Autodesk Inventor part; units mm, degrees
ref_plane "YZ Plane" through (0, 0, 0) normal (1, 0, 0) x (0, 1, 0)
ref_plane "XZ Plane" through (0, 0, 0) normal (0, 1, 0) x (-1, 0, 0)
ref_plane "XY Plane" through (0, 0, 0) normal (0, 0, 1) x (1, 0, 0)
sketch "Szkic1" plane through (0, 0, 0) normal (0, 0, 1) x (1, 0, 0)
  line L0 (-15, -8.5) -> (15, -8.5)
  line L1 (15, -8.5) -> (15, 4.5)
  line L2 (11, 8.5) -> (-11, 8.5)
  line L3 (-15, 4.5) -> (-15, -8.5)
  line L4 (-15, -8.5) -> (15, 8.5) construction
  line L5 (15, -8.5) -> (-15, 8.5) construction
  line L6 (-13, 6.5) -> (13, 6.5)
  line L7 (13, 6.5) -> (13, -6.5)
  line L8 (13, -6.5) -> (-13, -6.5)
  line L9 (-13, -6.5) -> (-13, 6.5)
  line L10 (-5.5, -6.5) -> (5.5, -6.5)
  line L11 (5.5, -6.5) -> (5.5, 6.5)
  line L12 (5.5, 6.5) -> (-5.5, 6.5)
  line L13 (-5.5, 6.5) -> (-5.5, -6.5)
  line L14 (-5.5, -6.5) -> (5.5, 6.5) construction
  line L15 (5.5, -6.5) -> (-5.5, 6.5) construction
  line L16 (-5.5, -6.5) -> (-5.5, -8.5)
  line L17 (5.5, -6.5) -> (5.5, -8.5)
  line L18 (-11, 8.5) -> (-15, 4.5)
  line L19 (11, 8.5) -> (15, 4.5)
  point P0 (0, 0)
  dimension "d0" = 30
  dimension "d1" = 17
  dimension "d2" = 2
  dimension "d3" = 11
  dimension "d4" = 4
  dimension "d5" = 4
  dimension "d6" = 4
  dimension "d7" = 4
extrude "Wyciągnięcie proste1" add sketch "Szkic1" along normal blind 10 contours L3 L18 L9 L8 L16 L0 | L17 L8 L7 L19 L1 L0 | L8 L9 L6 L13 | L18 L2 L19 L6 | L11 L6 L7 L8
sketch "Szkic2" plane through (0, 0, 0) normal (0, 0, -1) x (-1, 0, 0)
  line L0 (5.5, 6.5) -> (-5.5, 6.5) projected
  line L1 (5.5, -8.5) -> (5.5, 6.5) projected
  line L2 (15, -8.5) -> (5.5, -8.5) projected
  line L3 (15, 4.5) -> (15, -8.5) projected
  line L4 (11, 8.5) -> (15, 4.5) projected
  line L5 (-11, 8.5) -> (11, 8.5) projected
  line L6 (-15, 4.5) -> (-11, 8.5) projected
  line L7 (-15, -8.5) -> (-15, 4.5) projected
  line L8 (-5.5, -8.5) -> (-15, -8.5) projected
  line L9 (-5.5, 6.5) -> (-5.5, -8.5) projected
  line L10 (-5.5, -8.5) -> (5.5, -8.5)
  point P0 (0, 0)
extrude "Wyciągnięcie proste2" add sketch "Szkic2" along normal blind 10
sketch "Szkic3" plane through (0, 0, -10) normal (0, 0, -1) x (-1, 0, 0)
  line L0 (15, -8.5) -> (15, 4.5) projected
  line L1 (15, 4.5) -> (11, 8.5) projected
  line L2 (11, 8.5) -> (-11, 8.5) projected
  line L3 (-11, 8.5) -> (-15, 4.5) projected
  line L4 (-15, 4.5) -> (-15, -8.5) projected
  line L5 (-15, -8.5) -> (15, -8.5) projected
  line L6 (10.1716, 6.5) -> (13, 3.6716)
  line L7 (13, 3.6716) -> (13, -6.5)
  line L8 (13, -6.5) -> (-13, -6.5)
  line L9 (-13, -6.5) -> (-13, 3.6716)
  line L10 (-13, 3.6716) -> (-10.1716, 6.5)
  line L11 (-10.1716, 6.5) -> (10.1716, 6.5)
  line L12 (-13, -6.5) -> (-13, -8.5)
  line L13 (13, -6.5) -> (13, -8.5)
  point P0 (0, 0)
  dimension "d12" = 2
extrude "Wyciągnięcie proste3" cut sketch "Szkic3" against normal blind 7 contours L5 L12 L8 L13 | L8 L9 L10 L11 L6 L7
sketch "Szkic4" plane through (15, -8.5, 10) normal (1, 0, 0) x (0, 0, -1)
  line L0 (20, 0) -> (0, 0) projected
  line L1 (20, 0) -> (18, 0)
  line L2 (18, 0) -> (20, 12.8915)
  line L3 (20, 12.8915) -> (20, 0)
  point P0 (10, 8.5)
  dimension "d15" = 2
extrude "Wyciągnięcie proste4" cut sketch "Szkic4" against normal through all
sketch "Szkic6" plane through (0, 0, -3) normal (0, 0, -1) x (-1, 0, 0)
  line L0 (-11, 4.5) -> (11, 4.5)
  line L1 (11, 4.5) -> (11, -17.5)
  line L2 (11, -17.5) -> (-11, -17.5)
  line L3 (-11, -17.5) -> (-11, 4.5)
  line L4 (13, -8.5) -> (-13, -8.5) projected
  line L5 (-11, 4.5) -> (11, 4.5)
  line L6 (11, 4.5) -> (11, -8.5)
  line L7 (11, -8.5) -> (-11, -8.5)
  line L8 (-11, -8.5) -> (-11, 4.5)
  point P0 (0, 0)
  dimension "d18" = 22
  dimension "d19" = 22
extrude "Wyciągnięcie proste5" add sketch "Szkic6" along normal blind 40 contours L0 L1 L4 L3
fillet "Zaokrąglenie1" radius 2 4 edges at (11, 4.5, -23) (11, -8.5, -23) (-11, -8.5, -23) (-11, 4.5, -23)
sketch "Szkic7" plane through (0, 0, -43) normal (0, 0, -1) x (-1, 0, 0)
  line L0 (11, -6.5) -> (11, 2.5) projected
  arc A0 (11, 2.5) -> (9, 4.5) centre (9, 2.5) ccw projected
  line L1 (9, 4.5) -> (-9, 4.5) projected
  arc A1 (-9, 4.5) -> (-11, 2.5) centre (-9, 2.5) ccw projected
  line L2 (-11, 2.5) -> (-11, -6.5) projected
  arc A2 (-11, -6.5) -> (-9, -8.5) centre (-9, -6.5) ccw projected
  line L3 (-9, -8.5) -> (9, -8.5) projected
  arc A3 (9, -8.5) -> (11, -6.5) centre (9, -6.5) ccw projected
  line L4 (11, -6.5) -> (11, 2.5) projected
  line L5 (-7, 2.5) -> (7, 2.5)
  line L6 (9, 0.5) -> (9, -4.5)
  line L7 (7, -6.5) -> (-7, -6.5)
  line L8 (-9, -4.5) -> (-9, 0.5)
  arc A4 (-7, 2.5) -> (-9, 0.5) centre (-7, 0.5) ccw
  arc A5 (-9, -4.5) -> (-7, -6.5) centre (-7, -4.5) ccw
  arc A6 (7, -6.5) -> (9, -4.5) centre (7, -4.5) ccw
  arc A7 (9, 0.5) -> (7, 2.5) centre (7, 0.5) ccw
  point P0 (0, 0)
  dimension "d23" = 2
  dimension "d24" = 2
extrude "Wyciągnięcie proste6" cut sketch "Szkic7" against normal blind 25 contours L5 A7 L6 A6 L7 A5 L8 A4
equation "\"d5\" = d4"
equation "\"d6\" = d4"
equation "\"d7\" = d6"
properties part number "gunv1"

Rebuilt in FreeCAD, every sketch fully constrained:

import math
import FreeCAD as App
import Part
import Sketcher


def edges_at(feature, points):
    """Names of the edges that pass closest to the given points."""
    edges = feature.Shape.Edges
    near = lambda p: min(range(len(edges)), key=lambda i: edges[i].distToShape(Part.Vertex(*p))[0])
    return sorted({f"Edge{near(p) + 1}" for p in points})

doc = App.newDocument("Part")
params = doc.addObject("Spreadsheet::Sheet", "Params")
for row, (alias, value) in enumerate([
    ("sketch1_width", "11 mm"),
    ("pad1_length", "10 mm"),
    ("sketch2_width", "22 mm"),
    ("sketch2_width2", "30 mm"),
    ("sketch2_height", "13 mm"),
    ("pad2_length", "10 mm"),
    ("sketch3_width", "26 mm"),
    ("sketch3_length", "4 mm"),
    ("pocket1_length", "7 mm"),
    ("sketch4_height", "2 mm"),
    ("sketch5_width", "22 mm"),
    ("sketch5_height", "13 mm"),
    ("pad3_length", "40 mm"),
    ("fillet_radius", "2 mm"),
    ("sketch6_radius", "2 mm"),
    ("sketch6_width", "14 mm"),
    ("sketch6_height", "5 mm"),
    ("pocket3_length", "25 mm"),
], start=1):
    params.set(f"A{row}", alias)
    params.set(f"B{row}", "=" + value)
    params.setAlias(f"B{row}", alias)

body = doc.addObject("PartDesign::Body", "Body")

# Sketch on XY plane
sketch1 = doc.addObject("Sketcher::SketchObject", "Sketch")
body.addObject(sketch1)
sketch1.AttachmentSupport = (doc.XY_Plane, [""])
sketch1.MapMode = "FlatFace"
sketch1.addGeometry(Part.LineSegment(App.Vector(-15, 4, 0), App.Vector(-15, -8, 0)), False)
sketch1.addGeometry(Part.LineSegment(App.Vector(-15, -8, 0), App.Vector(-6, -8, 0)), False)
sketch1.addGeometry(Part.LineSegment(App.Vector(-6, -8, 0), App.Vector(-6, 6, 0)), False)
sketch1.addGeometry(Part.LineSegment(App.Vector(-6, 6, 0), App.Vector(6, 6, 0)), False)
sketch1.addGeometry(Part.LineSegment(App.Vector(6, 6, 0), App.Vector(6, -8, 0)), False)
sketch1.addGeometry(Part.LineSegment(App.Vector(6, -8, 0), App.Vector(15, -8, 0)), False)
sketch1.addGeometry(Part.LineSegment(App.Vector(15, -8, 0), App.Vector(15, 4, 0)), False)
sketch1.addGeometry(Part.LineSegment(App.Vector(15, 4, 0), App.Vector(11, 8, 0)), False)
sketch1.addGeometry(Part.LineSegment(App.Vector(11, 8, 0), App.Vector(-11, 8, 0)), False)
sketch1.addGeometry(Part.LineSegment(App.Vector(-11, 8, 0), App.Vector(-15, 4, 0)), False)
sketch1.addConstraint(Sketcher.Constraint("Coincident", 0, 2, 1, 1))
sketch1.addConstraint(Sketcher.Constraint("Coincident", 1, 2, 2, 1))
sketch1.addConstraint(Sketcher.Constraint("Coincident", 2, 2, 3, 1))
sketch1.addConstraint(Sketcher.Constraint("Coincident", 3, 2, 4, 1))
sketch1.addConstraint(Sketcher.Constraint("Coincident", 4, 2, 5, 1))
sketch1.addConstraint(Sketcher.Constraint("Coincident", 5, 2, 6, 1))
sketch1.addConstraint(Sketcher.Constraint("Coincident", 6, 2, 7, 1))
sketch1.addConstraint(Sketcher.Constraint("Coincident", 7, 2, 8, 1))
sketch1.addConstraint(Sketcher.Constraint("Coincident", 8, 2, 9, 1))
sketch1.addConstraint(Sketcher.Constraint("Coincident", 9, 2, 0, 1))
sketch1.addConstraint(Sketcher.Constraint("Vertical", 0))
sketch1.addConstraint(Sketcher.Constraint("Horizontal", 1))
sketch1.addConstraint(Sketcher.Constraint("Vertical", 2))
sketch1.addConstraint(Sketcher.Constraint("Horizontal", 3))
sketch1.addConstraint(Sketcher.Constraint("Vertical", 4))
sketch1.addConstraint(Sketcher.Constraint("Horizontal", 5))
sketch1.addConstraint(Sketcher.Constraint("Vertical", 6))
sketch1.addConstraint(Sketcher.Constraint("Horizontal", 8))
sketch1.addConstraint(Sketcher.Constraint("Symmetric", 1, 2, 4, 2, -2))
sketch1.addConstraint(Sketcher.Constraint("Symmetric", 6, 2, 9, 2, -2))
sketch1.addConstraint(Sketcher.Constraint("Perpendicular", 7, 9))
sketch1.addConstraint(Sketcher.Constraint("Equal", 7, 9))
sketch1.addConstraint(Sketcher.Constraint("DistanceX", 3, 1, 3, 2, 11.0))
sketch1.addConstraint(Sketcher.Constraint("DistanceX", -1, 1, 7, 2, 11.0))
sketch1.addConstraint(Sketcher.Constraint("DistanceX", 0, 2, 5, 2, 30.0))
sketch1.addConstraint(Sketcher.Constraint("DistanceY", 6, 2, 3, 2, 2.0))
sketch1.addConstraint(Sketcher.Constraint("DistanceY", 5, 2, 7, 2, 17.0))
sketch1.addConstraint(Sketcher.Constraint("DistanceY", 0, 2, -1, 1, 8.5))
sketch1.setExpression("Constraints[22]", "Params.sketch1_width")
pad1 = doc.addObject("PartDesign::Pad", "Pad")
body.addObject(pad1)
pad1.Profile = sketch1
pad1.setExpression("Length", "Params.pad1_length")

# Sketch on XY plane
sketch2 = doc.addObject("Sketcher::SketchObject", "Sketch001")
body.addObject(sketch2)
sketch2.AttachmentSupport = (doc.XY_Plane, [""])
sketch2.MapMode = "FlatFace"
sketch2.addGeometry(Part.LineSegment(App.Vector(-15, -8, 0), App.Vector(-15, 4, 0)), False)
sketch2.addGeometry(Part.LineSegment(App.Vector(-15, 4, 0), App.Vector(-11, 8, 0)), False)
sketch2.addGeometry(Part.LineSegment(App.Vector(-11, 8, 0), App.Vector(11, 8, 0)), False)
sketch2.addGeometry(Part.LineSegment(App.Vector(11, 8, 0), App.Vector(15, 4, 0)), False)
sketch2.addGeometry(Part.LineSegment(App.Vector(15, 4, 0), App.Vector(15, -8, 0)), False)
sketch2.addGeometry(Part.LineSegment(App.Vector(15, -8, 0), App.Vector(-15, -8, 0)), False)
sketch2.addConstraint(Sketcher.Constraint("Coincident", 0, 2, 1, 1))
sketch2.addConstraint(Sketcher.Constraint("Coincident", 1, 2, 2, 1))
sketch2.addConstraint(Sketcher.Constraint("Coincident", 2, 2, 3, 1))
sketch2.addConstraint(Sketcher.Constraint("Coincident", 3, 2, 4, 1))
sketch2.addConstraint(Sketcher.Constraint("Coincident", 4, 2, 5, 1))
sketch2.addConstraint(Sketcher.Constraint("Coincident", 5, 2, 0, 1))
sketch2.addConstraint(Sketcher.Constraint("Vertical", 0))
sketch2.addConstraint(Sketcher.Constraint("Horizontal", 2))
sketch2.addConstraint(Sketcher.Constraint("Vertical", 4))
sketch2.addConstraint(Sketcher.Constraint("Horizontal", 5))
sketch2.addConstraint(Sketcher.Constraint("Symmetric", 0, 2, 3, 2, -2))
sketch2.addConstraint(Sketcher.Constraint("Perpendicular", 1, 3))
sketch2.addConstraint(Sketcher.Constraint("Equal", 1, 3))
sketch2.addConstraint(Sketcher.Constraint("DistanceX", 2, 1, 2, 2, 22.0))
sketch2.addConstraint(Sketcher.Constraint("DistanceX", 5, 2, 5, 1, 30.0))
sketch2.addConstraint(Sketcher.Constraint("DistanceY", 0, 1, 0, 2, 13.0))
sketch2.addConstraint(Sketcher.Constraint("DistanceY", -1, 1, 0, 2, 4.5))
sketch2.setExpression("Constraints[13]", "Params.sketch2_width")
sketch2.setExpression("Constraints[14]", "Params.sketch2_width2")
sketch2.setExpression("Constraints[15]", "Params.sketch2_height")
pad2 = doc.addObject("PartDesign::Pad", "Pad001")
body.addObject(pad2)
pad2.Profile = sketch2
pad2.setExpression("Length", "Params.pad2_length")
pad2.Reversed = True

# Sketch on XY plane
sketch3 = doc.addObject("Sketcher::SketchObject", "Sketch002")
body.addObject(sketch3)
sketch3.AttachmentSupport = (doc.XY_Plane, [""])
sketch3.MapMode = "FlatFace"
sketch3.AttachmentOffset = App.Placement(App.Vector(0, 0, -10), App.Rotation())
sketch3.addGeometry(Part.LineSegment(App.Vector(13, -8.5, 0), App.Vector(-13, -8.5, 0)), False)
sketch3.addGeometry(Part.LineSegment(App.Vector(-13, -8.5, 0), App.Vector(-13, 3.7, 0)), False)
sketch3.addGeometry(Part.LineSegment(App.Vector(-13, 3.7, 0), App.Vector(-10.2, 6.5, 0)), False)
sketch3.addGeometry(Part.LineSegment(App.Vector(-10.2, 6.5, 0), App.Vector(10.2, 6.5, 0)), False)
sketch3.addGeometry(Part.LineSegment(App.Vector(10.2, 6.5, 0), App.Vector(13, 3.7, 0)), False)
sketch3.addGeometry(Part.LineSegment(App.Vector(13, 3.7, 0), App.Vector(13, -8.5, 0)), False)
sketch3.addConstraint(Sketcher.Constraint("Coincident", 0, 2, 1, 1))
sketch3.addConstraint(Sketcher.Constraint("Coincident", 1, 2, 2, 1))
sketch3.addConstraint(Sketcher.Constraint("Coincident", 2, 2, 3, 1))
sketch3.addConstraint(Sketcher.Constraint("Coincident", 3, 2, 4, 1))
sketch3.addConstraint(Sketcher.Constraint("Coincident", 4, 2, 5, 1))
sketch3.addConstraint(Sketcher.Constraint("Coincident", 5, 2, 0, 1))
sketch3.addConstraint(Sketcher.Constraint("Horizontal", 0))
sketch3.addConstraint(Sketcher.Constraint("Vertical", 1))
sketch3.addConstraint(Sketcher.Constraint("Horizontal", 3))
sketch3.addConstraint(Sketcher.Constraint("Vertical", 5))
sketch3.addConstraint(Sketcher.Constraint("Symmetric", 1, 2, 4, 2, -2))
sketch3.addConstraint(Sketcher.Constraint("Perpendicular", 2, 4))
sketch3.addConstraint(Sketcher.Constraint("Equal", 2, 4))
sketch3.addConstraint(Sketcher.Constraint("DistanceX", 0, 2, 0, 1, 26.0))
sketch3.addConstraint(Sketcher.Constraint("Distance", 2, 4.0))
sketch3.addConstraint(Sketcher.Constraint("DistanceY", 0, 2, 2, 2, 15.0))
sketch3.addConstraint(Sketcher.Constraint("DistanceY", 0, 2, -1, 1, 8.5))
sketch3.setExpression("Constraints[13]", "Params.sketch3_width")
sketch3.setExpression("Constraints[14]", "Params.sketch3_length")
pocket1 = doc.addObject("PartDesign::Pocket", "Pocket")
body.addObject(pocket1)
pocket1.Profile = sketch3
pocket1.setExpression("Length", "Params.pocket1_length")
pocket1.Reversed = True

# Sketch on YZ plane
sketch4 = doc.addObject("Sketcher::SketchObject", "Sketch003")
body.addObject(sketch4)
sketch4.AttachmentSupport = (doc.YZ_Plane, [""])
sketch4.MapMode = "FlatFace"
sketch4.AttachmentOffset = App.Placement(App.Vector(0, 0, 15), App.Rotation())
sketch4.addGeometry(Part.LineSegment(App.Vector(-8.5, -8, 0), App.Vector(-8.5, -10, 0)), False)
sketch4.addGeometry(Part.LineSegment(App.Vector(-8.5, -10, 0), App.Vector(4.4, -10, 0)), False)
sketch4.addGeometry(Part.LineSegment(App.Vector(4.4, -10, 0), App.Vector(-8.5, -8, 0)), False)
sketch4.addConstraint(Sketcher.Constraint("Coincident", 0, 2, 1, 1))
sketch4.addConstraint(Sketcher.Constraint("Coincident", 1, 2, 2, 1))
sketch4.addConstraint(Sketcher.Constraint("Coincident", 2, 2, 0, 1))
sketch4.addConstraint(Sketcher.Constraint("Vertical", 0))
sketch4.addConstraint(Sketcher.Constraint("Horizontal", 1))
sketch4.addConstraint(Sketcher.Constraint("DistanceY", 0, 2, 0, 1, 2.0))
sketch4.addConstraint(Sketcher.Constraint("DistanceY", 0, 2, -1, 1, 10.0))
sketch4.addConstraint(Sketcher.Constraint("DistanceX", 0, 2, -1, 1, 8.5))
sketch4.addConstraint(Sketcher.Constraint("DistanceX", 1, 1, 1, 2, 12.8915))
sketch4.setExpression("Constraints[5]", "Params.sketch4_height")
pocket2 = doc.addObject("PartDesign::Pocket", "Pocket001")
body.addObject(pocket2)
pocket2.Profile = sketch4
pocket2.Type = "ThroughAll"

# Sketch on XY plane
sketch5 = doc.addObject("Sketcher::SketchObject", "Sketch004")
body.addObject(sketch5)
sketch5.AttachmentSupport = (doc.XY_Plane, [""])
sketch5.MapMode = "FlatFace"
sketch5.AttachmentOffset = App.Placement(App.Vector(0, 0, -3), App.Rotation())
sketch5.addGeometry(Part.LineSegment(App.Vector(-11, 4, 0), App.Vector(11, 4, 0)), False)
sketch5.addGeometry(Part.LineSegment(App.Vector(11, 4, 0), App.Vector(11, -8, 0)), False)
sketch5.addGeometry(Part.LineSegment(App.Vector(11, -8, 0), App.Vector(-11, -8, 0)), False)
sketch5.addGeometry(Part.LineSegment(App.Vector(-11, -8, 0), App.Vector(-11, 4, 0)), False)
sketch5.addConstraint(Sketcher.Constraint("Coincident", 0, 2, 1, 1))
sketch5.addConstraint(Sketcher.Constraint("Coincident", 1, 2, 2, 1))
sketch5.addConstraint(Sketcher.Constraint("Coincident", 2, 2, 3, 1))
sketch5.addConstraint(Sketcher.Constraint("Coincident", 3, 2, 0, 1))
sketch5.addConstraint(Sketcher.Constraint("Horizontal", 0))
sketch5.addConstraint(Sketcher.Constraint("Vertical", 1))
sketch5.addConstraint(Sketcher.Constraint("Horizontal", 2))
sketch5.addConstraint(Sketcher.Constraint("Vertical", 3))
sketch5.addConstraint(Sketcher.Constraint("DistanceX", 0, 1, 0, 2, 22.0))
sketch5.addConstraint(Sketcher.Constraint("DistanceY", 1, 2, 1, 1, 13.0))
sketch5.addConstraint(Sketcher.Constraint("DistanceX", -1, 1, 0, 2, 11.0))
sketch5.addConstraint(Sketcher.Constraint("DistanceY", -1, 1, 0, 2, 4.5))
sketch5.setExpression("Constraints[8]", "Params.sketch5_width")
sketch5.setExpression("Constraints[9]", "Params.sketch5_height")
pad3 = doc.addObject("PartDesign::Pad", "Pad002")
body.addObject(pad3)
pad3.Profile = sketch5
pad3.setExpression("Length", "Params.pad3_length")
pad3.Reversed = True
doc.recompute()

fillet = doc.addObject("PartDesign::Fillet", "Fillet")
body.addObject(fillet)
fillet.Base = (pad3, edges_at(pad3, [
    (11, 4.5, -23),
    (11, -8.5, -23),
    (-11, -8.5, -23),
    (-11, 4.5, -23),
]))
fillet.setExpression("Radius", "Params.fillet_radius")

# Sketch on XY plane
sketch6 = doc.addObject("Sketcher::SketchObject", "Sketch005")
body.addObject(sketch6)
sketch6.AttachmentSupport = (doc.XY_Plane, [""])
sketch6.MapMode = "FlatFace"
sketch6.AttachmentOffset = App.Placement(App.Vector(0, 0, -43), App.Rotation())
sketch6.addGeometry(Part.LineSegment(App.Vector(-7, 2.5, 0), App.Vector(7, 2.5, 0)), False)
sketch6.addGeometry(Part.ArcOfCircle(Part.Circle(App.Vector(7, 0.5, 0), App.Vector(0, 0, 1), 2), math.radians(0), math.radians(90)), False)
sketch6.addGeometry(Part.LineSegment(App.Vector(9, 0.5, 0), App.Vector(9, -4.5, 0)), False)
sketch6.addGeometry(Part.ArcOfCircle(Part.Circle(App.Vector(7, -4.5, 0), App.Vector(0, 0, 1), 2), math.radians(-90), math.radians(0)), False)
sketch6.addGeometry(Part.LineSegment(App.Vector(7, -6.5, 0), App.Vector(-7, -6.5, 0)), False)
sketch6.addGeometry(Part.ArcOfCircle(Part.Circle(App.Vector(-7, -4.5, 0), App.Vector(0, 0, 1), 2), math.radians(180), math.radians(270)), False)
sketch6.addGeometry(Part.LineSegment(App.Vector(-9, -4.5, 0), App.Vector(-9, 0.5, 0)), False)
sketch6.addGeometry(Part.ArcOfCircle(Part.Circle(App.Vector(-7, 0.5, 0), App.Vector(0, 0, 1), 2), math.radians(90), math.radians(180)), False)
sketch6.addConstraint(Sketcher.Constraint("Tangent", 0, 2, 1, 2))
sketch6.addConstraint(Sketcher.Constraint("Tangent", 1, 1, 2, 1))
sketch6.addConstraint(Sketcher.Constraint("Tangent", 2, 2, 3, 2))
sketch6.addConstraint(Sketcher.Constraint("Tangent", 3, 1, 4, 1))
sketch6.addConstraint(Sketcher.Constraint("Tangent", 4, 2, 5, 2))
sketch6.addConstraint(Sketcher.Constraint("Tangent", 5, 1, 6, 1))
sketch6.addConstraint(Sketcher.Constraint("Tangent", 6, 2, 7, 2))
sketch6.addConstraint(Sketcher.Constraint("Tangent", 7, 1, 0, 1))
sketch6.addConstraint(Sketcher.Constraint("Horizontal", 0))
sketch6.addConstraint(Sketcher.Constraint("Vertical", 2))
sketch6.addConstraint(Sketcher.Constraint("Horizontal", 4))
sketch6.addConstraint(Sketcher.Constraint("Vertical", 6))
sketch6.addConstraint(Sketcher.Constraint("Equal", 1, 3))
sketch6.addConstraint(Sketcher.Constraint("Equal", 3, 5))
sketch6.addConstraint(Sketcher.Constraint("Equal", 5, 7))
sketch6.addConstraint(Sketcher.Constraint("Radius", 1, 2.0))
sketch6.addConstraint(Sketcher.Constraint("DistanceX", 0, 1, 0, 2, 14.0))
sketch6.addConstraint(Sketcher.Constraint("DistanceY", 2, 2, 2, 1, 5.0))
sketch6.addConstraint(Sketcher.Constraint("DistanceX", -1, 1, 1, 3, 7.0))
sketch6.addConstraint(Sketcher.Constraint("DistanceY", -1, 1, 1, 3, 0.5))
sketch6.setExpression("Constraints[15]", "Params.sketch6_radius")
sketch6.setExpression("Constraints[16]", "Params.sketch6_width")
sketch6.setExpression("Constraints[17]", "Params.sketch6_height")
pocket3 = doc.addObject("PartDesign::Pocket", "Pocket002")
body.addObject(pocket3)
pocket3.Profile = sketch6
pocket3.setExpression("Length", "Params.pocket3_length")
pocket3.Reversed = True

doc.recompute()
